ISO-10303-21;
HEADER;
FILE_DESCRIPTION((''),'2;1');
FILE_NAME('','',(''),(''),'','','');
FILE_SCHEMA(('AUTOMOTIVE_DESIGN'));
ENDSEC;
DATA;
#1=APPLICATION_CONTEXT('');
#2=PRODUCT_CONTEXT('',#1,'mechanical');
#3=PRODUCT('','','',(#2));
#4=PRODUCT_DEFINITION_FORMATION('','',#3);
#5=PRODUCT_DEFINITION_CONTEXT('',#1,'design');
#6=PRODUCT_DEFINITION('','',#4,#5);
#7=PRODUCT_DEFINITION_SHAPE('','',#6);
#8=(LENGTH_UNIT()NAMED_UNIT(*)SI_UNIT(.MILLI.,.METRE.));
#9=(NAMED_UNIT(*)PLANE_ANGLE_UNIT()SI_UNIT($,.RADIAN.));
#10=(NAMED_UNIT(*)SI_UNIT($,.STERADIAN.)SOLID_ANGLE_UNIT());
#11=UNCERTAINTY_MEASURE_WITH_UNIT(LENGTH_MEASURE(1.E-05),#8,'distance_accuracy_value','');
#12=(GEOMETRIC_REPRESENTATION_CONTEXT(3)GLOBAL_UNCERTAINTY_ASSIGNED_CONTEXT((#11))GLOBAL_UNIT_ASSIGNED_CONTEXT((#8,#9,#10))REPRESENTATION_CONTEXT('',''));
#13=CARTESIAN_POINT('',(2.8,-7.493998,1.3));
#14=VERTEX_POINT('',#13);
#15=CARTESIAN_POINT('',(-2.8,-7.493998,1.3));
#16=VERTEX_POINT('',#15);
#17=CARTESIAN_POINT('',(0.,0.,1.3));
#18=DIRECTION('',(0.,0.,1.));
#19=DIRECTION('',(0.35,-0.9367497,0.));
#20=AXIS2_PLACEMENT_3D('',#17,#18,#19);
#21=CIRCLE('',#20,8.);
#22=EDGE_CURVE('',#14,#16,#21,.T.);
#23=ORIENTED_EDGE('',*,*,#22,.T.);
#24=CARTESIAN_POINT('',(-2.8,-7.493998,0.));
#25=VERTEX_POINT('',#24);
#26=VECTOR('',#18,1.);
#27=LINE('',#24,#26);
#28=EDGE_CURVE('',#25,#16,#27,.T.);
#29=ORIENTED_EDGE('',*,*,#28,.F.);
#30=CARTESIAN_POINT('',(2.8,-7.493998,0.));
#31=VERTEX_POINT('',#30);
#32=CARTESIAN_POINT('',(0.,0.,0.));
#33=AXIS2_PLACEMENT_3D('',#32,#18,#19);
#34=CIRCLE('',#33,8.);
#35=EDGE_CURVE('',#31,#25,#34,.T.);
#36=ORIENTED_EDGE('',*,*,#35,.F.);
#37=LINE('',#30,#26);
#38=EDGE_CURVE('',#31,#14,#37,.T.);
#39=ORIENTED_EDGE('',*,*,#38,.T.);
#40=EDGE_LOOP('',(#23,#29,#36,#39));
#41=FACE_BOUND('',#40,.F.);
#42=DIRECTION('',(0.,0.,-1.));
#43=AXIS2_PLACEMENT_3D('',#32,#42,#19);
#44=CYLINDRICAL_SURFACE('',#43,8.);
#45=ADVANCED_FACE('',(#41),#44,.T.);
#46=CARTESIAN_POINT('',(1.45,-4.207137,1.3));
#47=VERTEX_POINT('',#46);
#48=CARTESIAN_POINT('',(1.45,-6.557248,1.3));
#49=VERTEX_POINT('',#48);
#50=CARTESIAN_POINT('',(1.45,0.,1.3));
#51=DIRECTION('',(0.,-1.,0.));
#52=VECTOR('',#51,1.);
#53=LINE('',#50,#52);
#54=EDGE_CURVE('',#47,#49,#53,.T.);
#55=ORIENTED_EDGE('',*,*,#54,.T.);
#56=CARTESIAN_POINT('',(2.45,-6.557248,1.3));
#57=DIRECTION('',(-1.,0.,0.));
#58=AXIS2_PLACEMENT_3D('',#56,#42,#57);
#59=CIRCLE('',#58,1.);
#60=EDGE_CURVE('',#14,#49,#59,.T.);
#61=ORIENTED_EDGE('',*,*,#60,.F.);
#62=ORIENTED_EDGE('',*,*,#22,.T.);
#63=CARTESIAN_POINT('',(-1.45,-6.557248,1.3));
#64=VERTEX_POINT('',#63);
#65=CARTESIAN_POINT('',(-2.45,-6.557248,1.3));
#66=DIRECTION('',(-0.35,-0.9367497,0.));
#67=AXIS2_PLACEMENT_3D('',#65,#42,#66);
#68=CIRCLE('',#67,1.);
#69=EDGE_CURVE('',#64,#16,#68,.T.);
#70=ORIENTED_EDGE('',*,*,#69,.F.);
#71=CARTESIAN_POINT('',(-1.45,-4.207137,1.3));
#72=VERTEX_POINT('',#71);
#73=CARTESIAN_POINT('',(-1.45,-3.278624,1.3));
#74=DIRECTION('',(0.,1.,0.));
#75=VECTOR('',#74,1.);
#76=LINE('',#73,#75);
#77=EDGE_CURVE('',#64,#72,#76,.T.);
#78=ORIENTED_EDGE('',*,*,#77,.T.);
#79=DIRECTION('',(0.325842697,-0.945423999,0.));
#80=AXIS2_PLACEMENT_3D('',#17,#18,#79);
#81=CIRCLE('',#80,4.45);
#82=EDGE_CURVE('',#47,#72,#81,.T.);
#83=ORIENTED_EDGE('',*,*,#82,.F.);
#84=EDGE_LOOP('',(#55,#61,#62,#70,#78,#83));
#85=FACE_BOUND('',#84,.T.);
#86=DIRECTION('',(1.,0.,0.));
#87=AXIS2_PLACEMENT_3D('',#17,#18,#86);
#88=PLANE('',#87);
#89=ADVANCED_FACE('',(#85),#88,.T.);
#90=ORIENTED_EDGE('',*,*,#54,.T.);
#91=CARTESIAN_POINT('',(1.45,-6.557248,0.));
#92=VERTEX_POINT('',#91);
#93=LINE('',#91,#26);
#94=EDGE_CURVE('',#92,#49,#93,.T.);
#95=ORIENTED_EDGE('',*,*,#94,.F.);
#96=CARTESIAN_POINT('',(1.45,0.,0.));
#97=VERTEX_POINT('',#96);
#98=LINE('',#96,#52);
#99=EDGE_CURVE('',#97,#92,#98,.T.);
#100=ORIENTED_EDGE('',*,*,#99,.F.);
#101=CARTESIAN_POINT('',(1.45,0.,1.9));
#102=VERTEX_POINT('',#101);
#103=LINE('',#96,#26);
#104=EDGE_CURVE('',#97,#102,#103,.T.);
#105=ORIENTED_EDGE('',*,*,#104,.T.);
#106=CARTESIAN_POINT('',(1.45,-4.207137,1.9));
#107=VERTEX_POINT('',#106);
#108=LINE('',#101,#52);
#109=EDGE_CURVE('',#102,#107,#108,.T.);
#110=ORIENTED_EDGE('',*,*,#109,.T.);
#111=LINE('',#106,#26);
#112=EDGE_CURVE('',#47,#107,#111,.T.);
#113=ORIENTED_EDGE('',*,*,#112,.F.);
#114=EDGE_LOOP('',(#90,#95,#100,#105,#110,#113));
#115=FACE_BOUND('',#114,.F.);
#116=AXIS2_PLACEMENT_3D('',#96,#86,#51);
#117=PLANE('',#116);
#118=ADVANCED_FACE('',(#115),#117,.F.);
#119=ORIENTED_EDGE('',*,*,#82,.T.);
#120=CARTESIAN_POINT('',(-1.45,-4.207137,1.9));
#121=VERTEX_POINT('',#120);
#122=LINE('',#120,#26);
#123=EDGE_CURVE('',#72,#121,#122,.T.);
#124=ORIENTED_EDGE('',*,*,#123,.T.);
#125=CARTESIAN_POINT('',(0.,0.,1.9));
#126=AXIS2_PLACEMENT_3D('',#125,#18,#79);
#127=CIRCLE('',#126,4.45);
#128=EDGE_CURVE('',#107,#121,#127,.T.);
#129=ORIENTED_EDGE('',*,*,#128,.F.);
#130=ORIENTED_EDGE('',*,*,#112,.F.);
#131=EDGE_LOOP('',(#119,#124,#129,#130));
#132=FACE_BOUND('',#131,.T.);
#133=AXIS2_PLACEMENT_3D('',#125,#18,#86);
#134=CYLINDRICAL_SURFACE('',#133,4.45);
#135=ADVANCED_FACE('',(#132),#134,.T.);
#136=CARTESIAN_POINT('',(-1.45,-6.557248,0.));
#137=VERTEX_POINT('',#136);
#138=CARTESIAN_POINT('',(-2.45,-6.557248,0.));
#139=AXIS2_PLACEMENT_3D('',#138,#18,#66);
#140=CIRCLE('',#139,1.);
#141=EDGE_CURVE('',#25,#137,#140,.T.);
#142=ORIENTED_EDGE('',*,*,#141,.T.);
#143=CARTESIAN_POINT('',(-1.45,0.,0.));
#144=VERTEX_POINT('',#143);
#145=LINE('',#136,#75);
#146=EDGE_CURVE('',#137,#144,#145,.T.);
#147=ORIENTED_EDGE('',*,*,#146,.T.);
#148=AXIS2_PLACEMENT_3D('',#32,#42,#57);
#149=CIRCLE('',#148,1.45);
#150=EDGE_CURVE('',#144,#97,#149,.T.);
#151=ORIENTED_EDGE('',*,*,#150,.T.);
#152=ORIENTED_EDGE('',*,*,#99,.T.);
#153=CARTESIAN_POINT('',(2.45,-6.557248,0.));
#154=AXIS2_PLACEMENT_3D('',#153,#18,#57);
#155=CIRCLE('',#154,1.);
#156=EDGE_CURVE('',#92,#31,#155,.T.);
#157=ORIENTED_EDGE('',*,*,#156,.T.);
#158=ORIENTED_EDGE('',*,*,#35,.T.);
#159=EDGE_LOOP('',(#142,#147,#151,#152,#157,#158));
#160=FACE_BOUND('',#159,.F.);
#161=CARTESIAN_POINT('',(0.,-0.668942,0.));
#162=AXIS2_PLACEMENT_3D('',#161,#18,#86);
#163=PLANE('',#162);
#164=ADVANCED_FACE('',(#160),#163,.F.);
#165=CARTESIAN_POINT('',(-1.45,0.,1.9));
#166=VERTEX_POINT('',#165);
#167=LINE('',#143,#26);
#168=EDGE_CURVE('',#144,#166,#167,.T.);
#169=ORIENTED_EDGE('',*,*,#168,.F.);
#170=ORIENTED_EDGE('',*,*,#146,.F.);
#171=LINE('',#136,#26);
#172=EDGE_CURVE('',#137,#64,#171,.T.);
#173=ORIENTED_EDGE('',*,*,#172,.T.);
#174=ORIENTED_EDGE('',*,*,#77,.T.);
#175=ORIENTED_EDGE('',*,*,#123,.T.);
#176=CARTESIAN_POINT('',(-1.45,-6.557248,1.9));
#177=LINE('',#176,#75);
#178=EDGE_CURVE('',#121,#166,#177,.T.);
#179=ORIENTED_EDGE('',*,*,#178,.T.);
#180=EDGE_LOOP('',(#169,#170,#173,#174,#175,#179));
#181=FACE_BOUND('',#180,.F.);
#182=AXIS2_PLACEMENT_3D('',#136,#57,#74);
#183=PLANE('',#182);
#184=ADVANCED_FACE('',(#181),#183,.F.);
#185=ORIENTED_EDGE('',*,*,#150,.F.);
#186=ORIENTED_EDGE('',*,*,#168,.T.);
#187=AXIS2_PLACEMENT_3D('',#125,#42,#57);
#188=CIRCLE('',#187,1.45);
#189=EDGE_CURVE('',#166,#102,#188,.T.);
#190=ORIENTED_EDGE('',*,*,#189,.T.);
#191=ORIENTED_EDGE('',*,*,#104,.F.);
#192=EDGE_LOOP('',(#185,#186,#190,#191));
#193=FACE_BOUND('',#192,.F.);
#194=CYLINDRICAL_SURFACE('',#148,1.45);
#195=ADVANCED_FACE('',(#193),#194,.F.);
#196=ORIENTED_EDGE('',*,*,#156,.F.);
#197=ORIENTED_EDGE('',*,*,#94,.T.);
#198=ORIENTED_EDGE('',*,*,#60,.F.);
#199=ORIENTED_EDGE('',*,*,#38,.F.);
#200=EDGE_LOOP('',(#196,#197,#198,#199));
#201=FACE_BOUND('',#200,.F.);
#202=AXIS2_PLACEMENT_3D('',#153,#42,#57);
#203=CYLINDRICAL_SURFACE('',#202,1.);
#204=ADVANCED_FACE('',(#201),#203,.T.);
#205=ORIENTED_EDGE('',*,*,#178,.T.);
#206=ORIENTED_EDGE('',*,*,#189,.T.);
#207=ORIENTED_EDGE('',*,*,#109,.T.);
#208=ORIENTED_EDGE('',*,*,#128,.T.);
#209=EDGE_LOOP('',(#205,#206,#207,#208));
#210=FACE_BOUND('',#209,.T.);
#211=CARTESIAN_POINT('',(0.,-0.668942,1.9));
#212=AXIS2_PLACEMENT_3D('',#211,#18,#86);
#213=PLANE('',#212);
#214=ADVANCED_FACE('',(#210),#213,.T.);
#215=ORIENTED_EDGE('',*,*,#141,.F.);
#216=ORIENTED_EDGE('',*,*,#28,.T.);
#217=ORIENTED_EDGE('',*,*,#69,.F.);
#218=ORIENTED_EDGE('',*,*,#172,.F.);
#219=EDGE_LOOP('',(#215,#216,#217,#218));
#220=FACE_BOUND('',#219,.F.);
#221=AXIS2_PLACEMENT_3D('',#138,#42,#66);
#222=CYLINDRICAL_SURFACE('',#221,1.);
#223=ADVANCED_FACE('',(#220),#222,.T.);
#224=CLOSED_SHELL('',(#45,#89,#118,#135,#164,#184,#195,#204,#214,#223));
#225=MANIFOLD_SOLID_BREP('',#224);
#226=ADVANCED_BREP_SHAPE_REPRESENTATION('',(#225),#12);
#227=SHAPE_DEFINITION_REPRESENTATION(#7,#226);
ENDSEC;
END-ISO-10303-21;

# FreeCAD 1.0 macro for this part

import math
import FreeCAD as App
import Part
import Sketcher

V = App.Vector

doc = App.newDocument("Part")
body = doc.addObject("PartDesign::Body", "Body")

# Sketch on XY plane
sketch1 = doc.addObject("Sketcher::SketchObject", "Sketch")
body.addObject(sketch1)
sketch1.AttachmentSupport = (doc.XY_Plane, [""])
sketch1.MapMode = "FlatFace"
sketch1.addGeometry([
    Part.ArcOfCircle(Part.Circle(V(0, 0, 0), V(0, 0, 1), 1.4), math.radians(0), math.radians(180)),  # 0
    Part.LineSegment(V(1.4, 0, 0), V(1.4, -6.6, 0)),  # 1
    Part.ArcOfCircle(Part.Circle(V(2.5, -6.6, 0), V(0, 0, 1), 1), math.radians(180), math.radians(290)),  # 2
    Part.ArcOfCircle(Part.Circle(V(0, 0, 0), V(0, 0, 1), 8), math.radians(-70), math.radians(250)),  # 3
    Part.ArcOfCircle(Part.Circle(V(-2.5, -6.6, 0), V(0, 0, 1), 1), math.radians(-110), math.radians(0)),  # 4
    Part.LineSegment(V(-1.4, -6.6, 0), V(-1.4, 0, 0)),  # 5
], False)
sketch1.addConstraint([
    Sketcher.Constraint("Tangent", 0, 1, 1, 1),
    Sketcher.Constraint("Tangent", 1, 2, 2, 1),
    Sketcher.Constraint("Tangent", 2, 2, 3, 1),
    Sketcher.Constraint("Tangent", 3, 2, 4, 1),
    Sketcher.Constraint("Tangent", 4, 2, 5, 1),
    Sketcher.Constraint("Tangent", 5, 2, 0, 2),
    Sketcher.Constraint("Vertical", 1),
    Sketcher.Constraint("Vertical", 5),
    Sketcher.Constraint("Coincident", 0, 3, -1, 1),
    Sketcher.Constraint("Coincident", 3, 3, -1, 1),
    Sketcher.Constraint("Equal", 2, 4),
    Sketcher.Constraint("Radius", 2, 1.0),
    Sketcher.Constraint("Radius", 3, 8.0),
    Sketcher.Constraint("Radius", 0, 1.45),
])
pad1 = doc.addObject("PartDesign::Pad", "Pad")
body.addObject(pad1)
pad1.Profile = sketch1
pad1.Length = 1.9

# Sketch on XY plane
sketch2 = doc.addObject("Sketcher::SketchObject", "Sketch001")
body.addObject(sketch2)
sketch2.AttachmentSupport = (doc.XY_Plane, [""])
sketch2.MapMode = "FlatFace"
sketch2.AttachmentOffset = App.Placement(V(0, 0, 1.9), App.Rotation())
sketch2.addGeometry([
    Part.Circle(V(0, 0, 0), V(0, 0, 1), 8),
    Part.Circle(V(0, 0, 0), V(0, 0, 1), 4.5),
], False)
sketch2.addConstraint([
    Sketcher.Constraint("Coincident", 0, 3, -1, 1),
    Sketcher.Constraint("Coincident", 1, 3, -1, 1),
    Sketcher.Constraint("Diameter", 0, 16.0),
    Sketcher.Constraint("Diameter", 1, 8.9),
])
pocket1 = doc.addObject("PartDesign::Pocket", "Pocket")
body.addObject(pocket1)
pocket1.Profile = sketch2
pocket1.Length = 0.6

doc.recompute()
